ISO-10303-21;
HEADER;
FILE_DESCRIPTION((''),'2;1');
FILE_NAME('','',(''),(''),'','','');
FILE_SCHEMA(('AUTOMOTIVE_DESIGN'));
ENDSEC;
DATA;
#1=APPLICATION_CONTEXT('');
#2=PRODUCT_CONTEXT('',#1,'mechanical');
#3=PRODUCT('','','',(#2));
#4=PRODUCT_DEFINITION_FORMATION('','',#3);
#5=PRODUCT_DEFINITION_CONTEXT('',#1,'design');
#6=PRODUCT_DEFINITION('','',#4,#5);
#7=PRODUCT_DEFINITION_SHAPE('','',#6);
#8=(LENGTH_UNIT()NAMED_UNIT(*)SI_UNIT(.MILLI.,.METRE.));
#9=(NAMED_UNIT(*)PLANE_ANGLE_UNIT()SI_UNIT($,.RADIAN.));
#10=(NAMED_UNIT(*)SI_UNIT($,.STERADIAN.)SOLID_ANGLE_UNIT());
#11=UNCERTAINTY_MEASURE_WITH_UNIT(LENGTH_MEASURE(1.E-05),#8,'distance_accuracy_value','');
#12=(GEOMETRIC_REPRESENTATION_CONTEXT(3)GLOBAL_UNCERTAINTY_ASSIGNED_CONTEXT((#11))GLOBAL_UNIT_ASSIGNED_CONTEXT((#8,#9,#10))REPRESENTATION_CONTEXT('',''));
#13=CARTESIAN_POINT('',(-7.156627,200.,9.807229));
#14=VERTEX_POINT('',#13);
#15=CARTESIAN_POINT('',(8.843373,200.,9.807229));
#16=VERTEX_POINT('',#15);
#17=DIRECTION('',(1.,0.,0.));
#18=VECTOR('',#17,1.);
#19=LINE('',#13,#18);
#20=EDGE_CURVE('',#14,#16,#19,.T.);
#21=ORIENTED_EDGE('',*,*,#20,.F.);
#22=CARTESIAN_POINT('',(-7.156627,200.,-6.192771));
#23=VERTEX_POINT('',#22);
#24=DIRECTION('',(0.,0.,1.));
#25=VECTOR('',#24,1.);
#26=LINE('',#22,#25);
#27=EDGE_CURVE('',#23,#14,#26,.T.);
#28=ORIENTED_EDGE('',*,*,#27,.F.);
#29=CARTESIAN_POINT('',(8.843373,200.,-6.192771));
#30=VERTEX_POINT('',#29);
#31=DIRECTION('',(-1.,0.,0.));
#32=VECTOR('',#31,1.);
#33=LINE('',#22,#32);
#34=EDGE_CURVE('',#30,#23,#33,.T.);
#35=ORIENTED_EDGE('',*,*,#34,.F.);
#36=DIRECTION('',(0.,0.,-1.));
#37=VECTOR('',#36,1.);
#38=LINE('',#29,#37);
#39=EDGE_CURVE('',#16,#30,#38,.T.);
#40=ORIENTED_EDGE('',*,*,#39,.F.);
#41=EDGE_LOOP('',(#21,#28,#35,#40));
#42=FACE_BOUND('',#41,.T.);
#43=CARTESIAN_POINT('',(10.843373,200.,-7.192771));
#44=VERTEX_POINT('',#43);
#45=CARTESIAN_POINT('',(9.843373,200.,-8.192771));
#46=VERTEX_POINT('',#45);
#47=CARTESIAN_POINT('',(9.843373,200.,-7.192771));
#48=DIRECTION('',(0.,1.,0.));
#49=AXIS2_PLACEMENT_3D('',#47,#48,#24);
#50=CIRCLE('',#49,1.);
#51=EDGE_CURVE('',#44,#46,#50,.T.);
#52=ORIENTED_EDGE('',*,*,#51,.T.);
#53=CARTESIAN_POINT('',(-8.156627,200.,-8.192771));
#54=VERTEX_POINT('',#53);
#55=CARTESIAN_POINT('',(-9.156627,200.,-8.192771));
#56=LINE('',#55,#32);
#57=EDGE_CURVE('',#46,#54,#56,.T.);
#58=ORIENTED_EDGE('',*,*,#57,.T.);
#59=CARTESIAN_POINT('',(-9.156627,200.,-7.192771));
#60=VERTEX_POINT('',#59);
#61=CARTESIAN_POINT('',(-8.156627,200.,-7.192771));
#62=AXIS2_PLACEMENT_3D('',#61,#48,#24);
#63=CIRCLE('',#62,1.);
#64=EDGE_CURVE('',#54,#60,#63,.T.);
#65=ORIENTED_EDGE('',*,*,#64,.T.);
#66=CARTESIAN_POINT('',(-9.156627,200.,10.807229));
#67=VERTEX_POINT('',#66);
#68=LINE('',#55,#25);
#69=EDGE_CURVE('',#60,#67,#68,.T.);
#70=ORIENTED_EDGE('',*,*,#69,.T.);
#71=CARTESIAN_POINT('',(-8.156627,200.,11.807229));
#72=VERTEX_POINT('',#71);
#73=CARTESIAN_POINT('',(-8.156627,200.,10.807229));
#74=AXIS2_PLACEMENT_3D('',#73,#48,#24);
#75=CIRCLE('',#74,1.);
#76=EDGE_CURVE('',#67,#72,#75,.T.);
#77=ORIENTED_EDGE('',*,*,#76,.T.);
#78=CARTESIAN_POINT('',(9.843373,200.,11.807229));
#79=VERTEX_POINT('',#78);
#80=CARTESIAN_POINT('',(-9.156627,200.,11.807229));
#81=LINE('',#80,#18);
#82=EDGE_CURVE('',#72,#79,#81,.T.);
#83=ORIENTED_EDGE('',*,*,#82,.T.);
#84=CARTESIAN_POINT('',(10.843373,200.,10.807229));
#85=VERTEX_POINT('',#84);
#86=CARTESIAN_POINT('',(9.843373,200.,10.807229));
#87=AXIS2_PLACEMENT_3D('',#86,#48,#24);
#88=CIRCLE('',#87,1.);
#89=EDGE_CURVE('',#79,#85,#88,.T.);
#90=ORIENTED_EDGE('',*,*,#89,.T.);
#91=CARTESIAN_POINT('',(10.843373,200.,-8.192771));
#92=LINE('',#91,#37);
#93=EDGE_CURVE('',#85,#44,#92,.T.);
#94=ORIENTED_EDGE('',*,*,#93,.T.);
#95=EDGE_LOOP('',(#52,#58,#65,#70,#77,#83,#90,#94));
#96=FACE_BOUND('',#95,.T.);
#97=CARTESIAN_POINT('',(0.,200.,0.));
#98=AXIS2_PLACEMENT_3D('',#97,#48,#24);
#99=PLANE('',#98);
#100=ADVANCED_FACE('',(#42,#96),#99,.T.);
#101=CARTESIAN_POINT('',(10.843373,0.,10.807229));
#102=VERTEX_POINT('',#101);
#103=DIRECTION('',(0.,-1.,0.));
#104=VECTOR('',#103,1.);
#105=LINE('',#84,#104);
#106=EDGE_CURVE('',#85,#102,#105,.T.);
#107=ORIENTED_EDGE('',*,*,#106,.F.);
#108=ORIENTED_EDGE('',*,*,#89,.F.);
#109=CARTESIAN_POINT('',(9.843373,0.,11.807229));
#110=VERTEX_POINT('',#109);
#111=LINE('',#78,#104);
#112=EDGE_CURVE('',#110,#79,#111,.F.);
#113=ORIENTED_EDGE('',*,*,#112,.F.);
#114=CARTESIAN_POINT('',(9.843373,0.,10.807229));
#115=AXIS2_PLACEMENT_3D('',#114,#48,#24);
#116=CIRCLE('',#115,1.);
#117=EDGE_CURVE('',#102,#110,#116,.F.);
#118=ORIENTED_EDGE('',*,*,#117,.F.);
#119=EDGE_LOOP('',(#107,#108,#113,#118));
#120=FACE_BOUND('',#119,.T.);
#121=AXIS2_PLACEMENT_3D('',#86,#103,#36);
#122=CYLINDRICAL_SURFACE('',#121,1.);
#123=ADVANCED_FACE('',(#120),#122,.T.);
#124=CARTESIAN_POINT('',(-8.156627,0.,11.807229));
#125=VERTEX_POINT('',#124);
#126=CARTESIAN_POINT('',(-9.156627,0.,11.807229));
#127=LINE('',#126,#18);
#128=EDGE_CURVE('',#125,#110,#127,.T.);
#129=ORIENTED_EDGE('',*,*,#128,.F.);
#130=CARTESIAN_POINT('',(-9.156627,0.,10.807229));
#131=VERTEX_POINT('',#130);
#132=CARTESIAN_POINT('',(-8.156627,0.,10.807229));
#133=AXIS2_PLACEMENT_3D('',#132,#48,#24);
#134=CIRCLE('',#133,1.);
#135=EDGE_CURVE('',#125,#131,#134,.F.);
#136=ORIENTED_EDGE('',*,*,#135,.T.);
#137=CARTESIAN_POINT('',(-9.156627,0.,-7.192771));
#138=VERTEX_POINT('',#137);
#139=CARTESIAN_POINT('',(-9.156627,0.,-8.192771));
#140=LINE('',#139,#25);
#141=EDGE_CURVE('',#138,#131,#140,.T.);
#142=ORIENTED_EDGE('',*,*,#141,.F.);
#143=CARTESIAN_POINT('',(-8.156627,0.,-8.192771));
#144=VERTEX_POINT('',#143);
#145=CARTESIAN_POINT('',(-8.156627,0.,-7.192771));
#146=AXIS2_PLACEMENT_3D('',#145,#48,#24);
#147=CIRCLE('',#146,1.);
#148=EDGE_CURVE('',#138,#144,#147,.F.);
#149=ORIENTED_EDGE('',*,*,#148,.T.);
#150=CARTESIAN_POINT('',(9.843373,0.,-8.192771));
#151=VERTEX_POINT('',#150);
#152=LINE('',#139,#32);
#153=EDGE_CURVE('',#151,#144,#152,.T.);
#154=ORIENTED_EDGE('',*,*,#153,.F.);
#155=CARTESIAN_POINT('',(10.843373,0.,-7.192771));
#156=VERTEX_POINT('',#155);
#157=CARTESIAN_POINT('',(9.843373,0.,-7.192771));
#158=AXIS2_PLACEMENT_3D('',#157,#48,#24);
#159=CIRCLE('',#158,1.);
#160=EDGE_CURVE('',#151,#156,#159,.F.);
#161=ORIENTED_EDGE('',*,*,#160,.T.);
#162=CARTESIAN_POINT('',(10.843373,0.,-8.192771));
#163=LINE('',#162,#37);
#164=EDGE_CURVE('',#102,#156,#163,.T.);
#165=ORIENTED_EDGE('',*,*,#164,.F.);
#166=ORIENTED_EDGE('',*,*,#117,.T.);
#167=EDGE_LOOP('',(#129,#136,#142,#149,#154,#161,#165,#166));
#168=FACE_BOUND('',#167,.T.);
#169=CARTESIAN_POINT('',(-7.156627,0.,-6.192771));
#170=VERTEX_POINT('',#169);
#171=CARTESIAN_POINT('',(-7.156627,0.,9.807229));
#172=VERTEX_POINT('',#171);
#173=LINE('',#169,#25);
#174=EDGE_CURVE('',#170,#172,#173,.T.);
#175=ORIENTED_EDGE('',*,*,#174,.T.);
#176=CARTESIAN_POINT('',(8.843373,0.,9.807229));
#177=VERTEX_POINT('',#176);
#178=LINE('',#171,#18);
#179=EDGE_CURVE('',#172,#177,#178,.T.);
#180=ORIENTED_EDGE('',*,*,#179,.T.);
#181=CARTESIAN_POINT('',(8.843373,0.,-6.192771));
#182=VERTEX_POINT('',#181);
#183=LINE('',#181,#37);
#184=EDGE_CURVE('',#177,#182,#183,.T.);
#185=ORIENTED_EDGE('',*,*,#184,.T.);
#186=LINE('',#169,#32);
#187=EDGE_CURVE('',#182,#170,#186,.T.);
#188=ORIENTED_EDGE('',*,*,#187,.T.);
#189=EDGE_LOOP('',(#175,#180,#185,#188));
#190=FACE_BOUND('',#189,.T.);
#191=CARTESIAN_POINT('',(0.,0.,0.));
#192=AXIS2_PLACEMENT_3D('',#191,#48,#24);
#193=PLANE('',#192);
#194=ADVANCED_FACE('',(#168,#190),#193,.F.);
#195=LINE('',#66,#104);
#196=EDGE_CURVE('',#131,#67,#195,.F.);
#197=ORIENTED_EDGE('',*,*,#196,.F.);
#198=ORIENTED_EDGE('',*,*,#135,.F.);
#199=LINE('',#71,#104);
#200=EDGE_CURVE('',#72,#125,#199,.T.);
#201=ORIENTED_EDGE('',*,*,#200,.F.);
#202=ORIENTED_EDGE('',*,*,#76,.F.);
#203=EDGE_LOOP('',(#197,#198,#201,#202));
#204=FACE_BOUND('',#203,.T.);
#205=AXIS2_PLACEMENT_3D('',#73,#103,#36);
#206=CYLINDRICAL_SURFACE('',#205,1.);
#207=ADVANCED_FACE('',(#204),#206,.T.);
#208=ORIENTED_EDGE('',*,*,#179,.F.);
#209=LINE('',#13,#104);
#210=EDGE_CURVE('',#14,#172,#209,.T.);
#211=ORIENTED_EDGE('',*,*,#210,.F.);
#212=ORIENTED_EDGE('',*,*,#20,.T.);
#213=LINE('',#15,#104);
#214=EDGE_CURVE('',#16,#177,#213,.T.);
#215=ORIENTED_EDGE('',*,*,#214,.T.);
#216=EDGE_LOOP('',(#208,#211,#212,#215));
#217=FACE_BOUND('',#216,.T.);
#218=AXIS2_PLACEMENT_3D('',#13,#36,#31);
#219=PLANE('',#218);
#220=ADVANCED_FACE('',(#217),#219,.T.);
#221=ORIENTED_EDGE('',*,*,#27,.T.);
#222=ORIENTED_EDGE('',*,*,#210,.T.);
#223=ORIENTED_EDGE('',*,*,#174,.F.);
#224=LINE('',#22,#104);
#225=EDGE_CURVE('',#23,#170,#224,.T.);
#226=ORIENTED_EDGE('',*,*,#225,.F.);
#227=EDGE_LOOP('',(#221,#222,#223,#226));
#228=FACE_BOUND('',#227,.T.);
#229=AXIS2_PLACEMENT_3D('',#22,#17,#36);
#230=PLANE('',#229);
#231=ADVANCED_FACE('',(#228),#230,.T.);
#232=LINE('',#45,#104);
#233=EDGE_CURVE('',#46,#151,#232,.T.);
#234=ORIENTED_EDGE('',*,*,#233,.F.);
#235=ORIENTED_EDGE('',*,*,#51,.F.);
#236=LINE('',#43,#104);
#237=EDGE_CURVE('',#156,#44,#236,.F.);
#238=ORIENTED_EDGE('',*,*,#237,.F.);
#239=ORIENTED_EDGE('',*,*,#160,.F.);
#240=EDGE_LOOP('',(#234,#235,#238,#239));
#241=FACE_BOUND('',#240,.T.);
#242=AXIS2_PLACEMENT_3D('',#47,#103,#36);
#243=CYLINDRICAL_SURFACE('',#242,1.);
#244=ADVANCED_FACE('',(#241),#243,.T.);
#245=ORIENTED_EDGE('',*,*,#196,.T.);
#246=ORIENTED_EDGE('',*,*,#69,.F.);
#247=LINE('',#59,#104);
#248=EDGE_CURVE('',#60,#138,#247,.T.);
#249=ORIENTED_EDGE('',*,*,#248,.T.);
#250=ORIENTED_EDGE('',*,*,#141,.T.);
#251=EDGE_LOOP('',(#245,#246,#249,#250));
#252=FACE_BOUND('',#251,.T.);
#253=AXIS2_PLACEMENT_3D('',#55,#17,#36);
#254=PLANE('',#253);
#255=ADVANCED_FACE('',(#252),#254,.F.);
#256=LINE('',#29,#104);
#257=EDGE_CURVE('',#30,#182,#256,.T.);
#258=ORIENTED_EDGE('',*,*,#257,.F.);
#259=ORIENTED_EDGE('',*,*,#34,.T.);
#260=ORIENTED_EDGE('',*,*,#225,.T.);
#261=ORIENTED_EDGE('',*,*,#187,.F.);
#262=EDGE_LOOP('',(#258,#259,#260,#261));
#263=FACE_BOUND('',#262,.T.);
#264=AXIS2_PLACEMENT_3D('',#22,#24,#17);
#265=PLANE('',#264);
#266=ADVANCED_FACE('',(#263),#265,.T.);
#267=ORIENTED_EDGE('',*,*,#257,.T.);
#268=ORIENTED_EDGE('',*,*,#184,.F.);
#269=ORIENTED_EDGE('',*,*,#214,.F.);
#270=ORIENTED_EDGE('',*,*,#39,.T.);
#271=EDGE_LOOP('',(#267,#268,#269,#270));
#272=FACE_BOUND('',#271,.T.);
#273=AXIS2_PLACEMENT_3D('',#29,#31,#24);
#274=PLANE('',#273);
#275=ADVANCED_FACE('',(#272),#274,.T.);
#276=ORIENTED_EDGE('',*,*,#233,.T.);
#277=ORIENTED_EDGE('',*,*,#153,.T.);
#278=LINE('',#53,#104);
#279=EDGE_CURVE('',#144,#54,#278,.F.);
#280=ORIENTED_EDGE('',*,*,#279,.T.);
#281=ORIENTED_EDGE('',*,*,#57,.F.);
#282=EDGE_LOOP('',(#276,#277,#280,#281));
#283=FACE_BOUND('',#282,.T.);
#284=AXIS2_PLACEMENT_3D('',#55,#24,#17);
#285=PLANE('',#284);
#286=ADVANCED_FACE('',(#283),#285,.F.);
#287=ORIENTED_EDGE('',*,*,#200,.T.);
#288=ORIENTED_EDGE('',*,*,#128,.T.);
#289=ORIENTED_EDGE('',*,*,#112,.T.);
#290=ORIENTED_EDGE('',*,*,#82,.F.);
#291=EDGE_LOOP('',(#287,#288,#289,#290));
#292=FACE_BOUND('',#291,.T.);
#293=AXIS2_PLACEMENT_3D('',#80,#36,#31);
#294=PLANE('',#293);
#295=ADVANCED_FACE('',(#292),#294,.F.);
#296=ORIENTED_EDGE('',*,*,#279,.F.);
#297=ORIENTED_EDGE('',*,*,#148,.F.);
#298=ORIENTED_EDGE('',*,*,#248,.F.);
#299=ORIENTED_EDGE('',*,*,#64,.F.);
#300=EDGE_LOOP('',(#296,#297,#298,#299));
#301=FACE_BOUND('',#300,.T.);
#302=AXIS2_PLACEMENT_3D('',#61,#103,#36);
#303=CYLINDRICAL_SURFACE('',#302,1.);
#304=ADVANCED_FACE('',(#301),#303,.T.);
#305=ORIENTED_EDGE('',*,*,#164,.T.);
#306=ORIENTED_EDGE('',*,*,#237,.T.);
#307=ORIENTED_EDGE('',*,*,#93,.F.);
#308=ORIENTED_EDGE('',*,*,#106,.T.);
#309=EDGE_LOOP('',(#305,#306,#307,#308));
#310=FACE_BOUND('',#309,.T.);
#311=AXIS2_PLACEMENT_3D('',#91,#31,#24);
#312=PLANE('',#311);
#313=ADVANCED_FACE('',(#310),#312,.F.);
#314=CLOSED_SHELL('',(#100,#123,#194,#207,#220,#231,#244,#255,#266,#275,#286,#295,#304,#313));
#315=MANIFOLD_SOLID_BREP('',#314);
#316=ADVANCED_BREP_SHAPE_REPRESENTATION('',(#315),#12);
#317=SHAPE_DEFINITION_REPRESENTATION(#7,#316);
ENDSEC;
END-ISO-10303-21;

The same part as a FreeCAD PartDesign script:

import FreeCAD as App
import Part
import Sketcher
from FreeCAD import Vector
Q = App.Units.Quantity


def edges_at(feature, points):
    """Names of the edges that pass closest to the given points."""
    edges = feature.Shape.Edges
    near = lambda p: min(range(len(edges)), key=lambda i: edges[i].distToShape(Part.Vertex(*p))[0])
    return sorted({f"Edge{near(p) + 1}" for p in points})

doc = App.newDocument("Part")
params = doc.addObject("Spreadsheet::Sheet", "Params")
for row, (alias, value) in enumerate([
    ("sketch1_width", "20 mm"),
    ("sketch1_width2", "16 mm"),
    ("pad1_length", "200 mm"),
    ("fillet_radius", "1 mm"),
], start=1):
    params.set(f"A{row}", alias)
    params.set(f"B{row}", "=" + value)
    params.setAlias(f"B{row}", alias)

body = doc.addObject("PartDesign::Body", "Body")

# Sketch on XZ plane
sketch1 = body.newObject("Sketcher::SketchObject", "Sketch")
sketch1.AttachmentSupport = (doc.getObject("XZ_Plane"), [""])
sketch1.MapMode = "FlatFace"
sketch1.addGeometry([
    Part.LineSegment(Vector(-9, -8, 0), Vector(-9, 12, 0)),  # 0
    Part.LineSegment(Vector(-9, 12, 0), Vector(11, 12, 0)),  # 1
    Part.LineSegment(Vector(11, 12, 0), Vector(11, -8, 0)),  # 2
    Part.LineSegment(Vector(11, -8, 0), Vector(-9, -8, 0)),  # 3
    Part.LineSegment(Vector(9, 10, 0), Vector(-7, 10, 0)),  # 4
    Part.LineSegment(Vector(-7, 10, 0), Vector(-7, -6, 0)),  # 5
    Part.LineSegment(Vector(-7, -6, 0), Vector(9, -6, 0)),  # 6
    Part.LineSegment(Vector(9, -6, 0), Vector(9, 10, 0)),  # 7
], False)
sketch1.addConstraint([
    Sketcher.Constraint("Coincident", 0, 2, 1, 1),
    Sketcher.Constraint("Coincident", 1, 2, 2, 1),
    Sketcher.Constraint("Coincident", 2, 2, 3, 1),
    Sketcher.Constraint("Coincident", 3, 2, 0, 1),
    Sketcher.Constraint("Coincident", 4, 2, 5, 1),
    Sketcher.Constraint("Coincident", 5, 2, 6, 1),
    Sketcher.Constraint("Coincident", 6, 2, 7, 1),
    Sketcher.Constraint("Coincident", 7, 2, 4, 1),
    Sketcher.Constraint("Vertical", 0),
    Sketcher.Constraint("Horizontal", 1),
    Sketcher.Constraint("Vertical", 2),
    Sketcher.Constraint("Horizontal", 3),
    Sketcher.Constraint("Horizontal", 4),
    Sketcher.Constraint("Vertical", 5),
    Sketcher.Constraint("Horizontal", 6),
    Sketcher.Constraint("Vertical", 7),
    Sketcher.Constraint("Equal", 3, 0),
    Sketcher.Constraint("Equal", 6, 5),
    Sketcher.Constraint("DistanceX", 1, 1, 1, 2, Q("20 mm")),
    Sketcher.Constraint("DistanceX", 4, 2, 4, 1, Q("16 mm")),
    Sketcher.Constraint("DistanceX", 0, 2, 4, 2, Q("2 mm")),
    Sketcher.Constraint("DistanceY", 4, 2, 0, 2, Q("2 mm")),
    Sketcher.Constraint("DistanceY", -1, 1, 0, 2, Q("11.807229 mm")),
    Sketcher.Constraint("DistanceX", 0, 2, -1, 1, Q("9.156627 mm")),
])
sketch1.setExpression("Constraints[18]", "Params.sketch1_width")
sketch1.setExpression("Constraints[19]", "Params.sketch1_width2")
pad1 = body.newObject("PartDesign::Pad", "Pad")
pad1.Profile = sketch1
pad1.setExpression("Length", "Params.pad1_length")
pad1.Reversed = True
doc.recompute()

fillet = body.newObject("PartDesign::Fillet", "Fillet")
fillet.Base = (pad1, edges_at(pad1, [
    (-9.157, 100, -8.193),
    (10.843, 100, -8.193),
    (10.843, 100, 11.807),
    (-9.157, 100, 11.807),
]))
fillet.setExpression("Radius", "Params.fillet_radius")

doc.recompute()
